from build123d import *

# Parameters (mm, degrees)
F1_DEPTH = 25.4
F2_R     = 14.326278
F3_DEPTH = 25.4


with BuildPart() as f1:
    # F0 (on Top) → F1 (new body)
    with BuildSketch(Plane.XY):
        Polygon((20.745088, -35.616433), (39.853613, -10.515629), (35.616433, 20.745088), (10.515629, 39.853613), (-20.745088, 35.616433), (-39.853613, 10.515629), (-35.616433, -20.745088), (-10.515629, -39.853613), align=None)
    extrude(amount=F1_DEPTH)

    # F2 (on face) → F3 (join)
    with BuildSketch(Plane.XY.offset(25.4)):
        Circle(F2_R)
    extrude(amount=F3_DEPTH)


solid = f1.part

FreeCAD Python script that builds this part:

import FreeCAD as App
import Part
import Sketcher

V = App.Vector
Q = App.Units.Quantity


def add_polygon(sketch, points):
    """Adds a closed chain of lines whose ends are joined by coincident constraints."""
    first, n = sketch.GeometryCount, len(points)
    for a, b in zip(points, points[1:] + points[:1]):
        sketch.addGeometry(Part.LineSegment(App.Vector(*a, 0), App.Vector(*b, 0)), False)
    for i in range(n):
        sketch.addConstraint(Sketcher.Constraint("Coincident", first + i, 2, first + (i + 1) % n, 1))

doc = App.newDocument("Part")
body = doc.addObject("PartDesign::Body", "Body")

# Sketch on XY plane
sketch1 = body.newObject("Sketcher::SketchObject", "Sketch")
sketch1.AttachmentSupport = (doc.getObject("XY_Plane"), [""])
sketch1.MapMode = "FlatFace"
add_polygon(sketch1, [(21, -36), (40, -11), (36, 21), (11, 40), (-21, 36), (-40, 11), (-36, -21), (-11, -40)])  # lines 0-7
sketch1.addConstraint([
    Sketcher.Constraint("Symmetric", 0, 2, 4, 2, -1, 1),
    Sketcher.Constraint("Symmetric", 1, 2, 5, 2, -1, 1),
    Sketcher.Constraint("Symmetric", 2, 2, 6, 2, -1, 1),
    Sketcher.Constraint("Symmetric", 3, 2, 7, 2, -1, 1),
    Sketcher.Constraint("Perpendicular", 0, 2),
    Sketcher.Constraint("Perpendicular", 1, 3),
    Sketcher.Constraint("Equal", 0, 1),
    Sketcher.Constraint("Equal", 1, 2),
    Sketcher.Constraint("Equal", 2, 3),
    Sketcher.Constraint("DistanceX", 3, 2, 0, 2, Q("60.598701 mm")),
    Sketcher.Constraint("Distance", 0, Q("31.54657 mm")),
    Sketcher.Constraint("DistanceY", 0, 2, -1, 1, Q("10.515629 mm")),
])
pad1 = body.newObject("PartDesign::Pad", "Pad")
pad1.Profile = sketch1
pad1.Length = Q("1 in")

# Sketch on XY plane
sketch2 = body.newObject("Sketcher::SketchObject", "Sketch001")
sketch2.AttachmentSupport = (doc.getObject("XY_Plane"), [""])
sketch2.MapMode = "FlatFace"
sketch2.AttachmentOffset = App.Placement(V(0, 0, 1 * 25.4), App.Rotation())
sketch2.addGeometry(Part.Circle(V(0, 0, 0), V(0, 0, 1), 14), False)
sketch2.addConstraint([
    Sketcher.Constraint("Coincident", 0, 3, -1, 1),
    Sketcher.Constraint("Diameter", 0, Q("28.652556 mm")),
])
pad2 = body.newObject("PartDesign::Pad", "Pad001")
pad2.Profile = sketch2
pad2.Length = Q("1 in")

doc.recompute()
